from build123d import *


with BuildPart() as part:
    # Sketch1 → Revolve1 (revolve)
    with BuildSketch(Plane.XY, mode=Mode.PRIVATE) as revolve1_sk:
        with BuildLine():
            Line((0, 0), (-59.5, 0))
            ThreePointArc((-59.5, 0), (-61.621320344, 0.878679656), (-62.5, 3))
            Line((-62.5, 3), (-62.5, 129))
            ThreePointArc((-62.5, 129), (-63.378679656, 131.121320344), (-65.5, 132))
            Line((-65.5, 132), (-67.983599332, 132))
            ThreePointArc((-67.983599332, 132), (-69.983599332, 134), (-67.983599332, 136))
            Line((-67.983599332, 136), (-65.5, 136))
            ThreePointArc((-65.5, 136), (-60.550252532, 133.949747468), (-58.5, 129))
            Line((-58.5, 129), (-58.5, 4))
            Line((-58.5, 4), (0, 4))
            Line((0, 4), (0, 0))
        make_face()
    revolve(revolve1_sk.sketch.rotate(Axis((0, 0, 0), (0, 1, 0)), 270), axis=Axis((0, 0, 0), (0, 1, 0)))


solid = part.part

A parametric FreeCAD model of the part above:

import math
import FreeCAD as App
import Part
import Sketcher
from FreeCAD import Vector

doc = App.newDocument("Part")
params = doc.addObject("Spreadsheet::Sheet", "Params")
for row, (alias, value) in enumerate([
    ("sketch1_radius", "7 mm"),
    ("sketch1_radius2", "2 mm"),
    ("sketch1_height", "4 mm"),
    ("sketch1_height2", "125 mm"),
    ("sketch1_width", "59.5 mm"),
    ("revolution_angle", "360 deg"),
], start=1):
    params.set(f"A{row}", alias)
    params.set(f"B{row}", "=" + value)
    params.setAlias(f"B{row}", alias)

body = doc.addObject("PartDesign::Body", "Body")

# Sketch on XY plane
sketch1 = doc.addObject("Sketcher::SketchObject", "Sketch")
body.addObject(sketch1)
sketch1.AttachmentSupport = (doc.XY_Plane, [""])
sketch1.MapMode = "FlatFace"
sketch1.addGeometry([
    Part.LineSegment(Vector(-59.5, 0, 0), Vector(0, 0, 0)),  # 0
    Part.LineSegment(Vector(0, 0, 0), Vector(0, 4, 0)),  # 1
    Part.LineSegment(Vector(0, 4, 0), Vector(-58.5, 4, 0)),  # 2
    Part.LineSegment(Vector(-58.5, 4, 0), Vector(-58.5, 129, 0)),  # 3
    Part.ArcOfCircle(Part.Circle(Vector(-65.5, 129, 0), Vector(0, 0, 1), 7), math.radians(0), math.radians(90)),  # 4
    Part.LineSegment(Vector(-65.5, 136, 0), Vector(-68, 136, 0)),  # 5
    Part.ArcOfCircle(Part.Circle(Vector(-68, 134, 0), Vector(0, 0, 1), 2), math.radians(90), math.radians(270)),  # 6
    Part.LineSegment(Vector(-68, 132, 0), Vector(-65.5, 132, 0)),  # 7
    Part.ArcOfCircle(Part.Circle(Vector(-65.5, 129, 0), Vector(0, 0, 1), 3), math.radians(0), math.radians(90)),  # 8
    Part.LineSegment(Vector(-62.5, 129, 0), Vector(-62.5, 3, 0)),  # 9
    Part.ArcOfCircle(Part.Circle(Vector(-59.5, 3, 0), Vector(0, 0, 1), 3), math.radians(180), math.radians(270)),  # 10
], False)
sketch1.addConstraint([
    Sketcher.Constraint("Coincident", 0, 2, 1, 1),
    Sketcher.Constraint("Coincident", 1, 2, 2, 1),
    Sketcher.Constraint("Coincident", 2, 2, 3, 1),
    Sketcher.Constraint("Tangent", 3, 2, 4, 1),
    Sketcher.Constraint("Tangent", 4, 2, 5, 1),
    Sketcher.Constraint("Tangent", 5, 2, 6, 1),
    Sketcher.Constraint("Tangent", 6, 2, 7, 1),
    Sketcher.Constraint("Tangent", 7, 2, 8, 2),
    Sketcher.Constraint("Tangent", 8, 1, 9, 1),
    Sketcher.Constraint("Tangent", 9, 2, 10, 1),
    Sketcher.Constraint("Tangent", 10, 2, 0, 1),
    Sketcher.Constraint("Horizontal", 0),
    Sketcher.Constraint("Vertical", 1),
    Sketcher.Constraint("Horizontal", 2),
    Sketcher.Constraint("Vertical", 3),
    Sketcher.Constraint("Horizontal", 5),
    Sketcher.Constraint("Horizontal", 7),
    Sketcher.Constraint("Vertical", 9),
    Sketcher.Constraint("Coincident", 0, 2, -1, 1),
    Sketcher.Constraint("Coincident", 8, 3, 4, 3),
    Sketcher.Constraint("Equal", 8, 10),
    Sketcher.Constraint("Radius", 4, 7.0),
    Sketcher.Constraint("Radius", 6, 2.0),
    Sketcher.Constraint("DistanceY", 1, 1, 1, 2, 4.0),
    Sketcher.Constraint("DistanceY", 3, 1, 3, 2, 125.0),
    Sketcher.Constraint("DistanceX", 0, 1, 0, 2, 59.5),
    Sketcher.Constraint("DistanceX", 5, 2, 5, 1, 2.483599),
])
sketch1.setExpression("Constraints[21]", "Params.sketch1_radius")
sketch1.setExpression("Constraints[22]", "Params.sketch1_radius2")
sketch1.setExpression("Constraints[23]", "Params.sketch1_height")
sketch1.setExpression("Constraints[24]", "Params.sketch1_height2")
sketch1.setExpression("Constraints[25]", "Params.sketch1_width")
revolution = doc.addObject("PartDesign::Revolution", "Revolution")
body.addObject(revolution)
revolution.Profile = sketch1
revolution.ReferenceAxis = (sketch1, ["V_Axis"])
revolution.setExpression("Angle", "Params.revolution_angle")

doc.recompute()
